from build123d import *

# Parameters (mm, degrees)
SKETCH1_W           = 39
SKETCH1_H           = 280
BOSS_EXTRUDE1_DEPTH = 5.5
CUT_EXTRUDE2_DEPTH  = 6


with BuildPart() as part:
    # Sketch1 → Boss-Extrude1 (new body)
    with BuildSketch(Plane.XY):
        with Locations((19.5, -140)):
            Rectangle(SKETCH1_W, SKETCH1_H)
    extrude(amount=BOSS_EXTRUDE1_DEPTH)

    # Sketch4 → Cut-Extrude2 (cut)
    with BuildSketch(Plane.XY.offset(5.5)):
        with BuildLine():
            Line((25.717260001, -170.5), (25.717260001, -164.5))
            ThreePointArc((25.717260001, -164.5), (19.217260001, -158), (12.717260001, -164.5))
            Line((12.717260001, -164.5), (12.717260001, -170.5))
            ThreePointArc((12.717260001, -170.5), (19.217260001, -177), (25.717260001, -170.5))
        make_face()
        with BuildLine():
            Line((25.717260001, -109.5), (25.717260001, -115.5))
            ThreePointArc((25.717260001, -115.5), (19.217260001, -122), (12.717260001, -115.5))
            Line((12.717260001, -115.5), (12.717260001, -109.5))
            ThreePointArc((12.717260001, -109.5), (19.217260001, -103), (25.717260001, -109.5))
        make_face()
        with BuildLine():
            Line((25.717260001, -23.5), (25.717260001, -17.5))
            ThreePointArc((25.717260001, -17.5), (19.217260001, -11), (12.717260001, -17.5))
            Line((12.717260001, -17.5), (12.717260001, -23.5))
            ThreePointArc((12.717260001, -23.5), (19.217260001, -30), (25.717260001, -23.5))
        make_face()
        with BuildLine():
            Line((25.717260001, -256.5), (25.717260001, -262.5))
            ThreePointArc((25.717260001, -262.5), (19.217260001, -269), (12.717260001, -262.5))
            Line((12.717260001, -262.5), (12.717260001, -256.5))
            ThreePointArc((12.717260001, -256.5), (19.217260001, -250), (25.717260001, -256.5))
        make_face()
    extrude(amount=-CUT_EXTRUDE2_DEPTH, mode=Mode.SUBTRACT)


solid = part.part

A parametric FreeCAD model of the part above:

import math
import FreeCAD as App
import Part
import Sketcher
Q = App.Units.Quantity


def add_polygon(sketch, points):
    """Adds a closed chain of lines whose ends are joined by coincident constraints."""
    first, n = sketch.GeometryCount, len(points)
    for a, b in zip(points, points[1:] + points[:1]):
        sketch.addGeometry(Part.LineSegment(App.Vector(*a, 0), App.Vector(*b, 0)), False)
    for i in range(n):
        sketch.addConstraint(Sketcher.Constraint("Coincident", first + i, 2, first + (i + 1) % n, 1))

doc = App.newDocument("Part")
params = doc.addObject("Spreadsheet::Sheet", "Params")
for row, (alias, value) in enumerate([
    ("sketch1_width", "39 mm"),
    ("sketch1_height", "280 mm"),
    ("pad1_length", "5.5 mm"),
    ("sketch2_radius", "6.5 mm"),
    ("sketch2_height", "6 mm"),
    ("pocket1_length", "6 mm"),
], start=1):
    params.set(f"A{row}", alias)
    params.set(f"B{row}", "=" + value)
    params.setAlias(f"B{row}", alias)

body = doc.addObject("PartDesign::Body", "Body")

sketch1 = body.newObject("Sketcher::SketchObject", "Sketch")
sketch1.AttachmentSupport = (doc.getObject("XY_Plane"), [""])
sketch1.MapMode = "FlatFace"
add_polygon(sketch1, [(0, 0), (0, -280), (39, -280), (39, 0)])
sketch1.addConstraint([
    Sketcher.Constraint("Vertical", 0),
    Sketcher.Constraint("Horizontal", 1),
    Sketcher.Constraint("Vertical", 2),
    Sketcher.Constraint("Horizontal", 3),
    Sketcher.Constraint("Coincident", 3, 2, -1, 1),
    Sketcher.Constraint("DistanceX", 1, 1, 1, 2, Q("39 mm")),
    Sketcher.Constraint("DistanceY", 0, 2, 0, 1, Q("280 mm")),
])
sketch1.setExpression("Constraints[9]", "Params.sketch1_width")
sketch1.setExpression("Constraints[10]", "Params.sketch1_height")
pad1 = body.newObject("PartDesign::Pad", "Pad")
pad1.Profile = sketch1
pad1.setExpression("Length", "Params.pad1_length")

sketch2 = body.newObject("Sketcher::SketchObject", "Sketch001")
sketch2.AttachmentSupport = (doc.getObject("XY_Plane"), [""])
sketch2.MapMode = "FlatFace"
sketch2.AttachmentOffset = App.Placement(App.Vector(0, 0, 5.5), App.Rotation())
sketch2.addGeometry([
    Part.LineSegment(App.Vector(26, -170, 0), App.Vector(26, -164, 0)),
    Part.ArcOfCircle(Part.Circle(App.Vector(19, -164, 0), App.Vector(0, 0, 1), 6), math.radians(0), math.radians(180)),
    Part.LineSegment(App.Vector(13, -164, 0), App.Vector(13, -170, 0)),
    Part.ArcOfCircle(Part.Circle(App.Vector(19, -170, 0), App.Vector(0, 0, 1), 6), math.radians(180), math.radians(360)),
    Part.LineSegment(App.Vector(26, -116, 0), App.Vector(26, -110, 0)),
    Part.ArcOfCircle(Part.Circle(App.Vector(19, -110, 0), App.Vector(0, 0, 1), 6), math.radians(0), math.radians(180)),
    Part.LineSegment(App.Vector(13, -110, 0), App.Vector(13, -116, 0)),
    Part.ArcOfCircle(Part.Circle(App.Vector(19, -116, 0), App.Vector(0, 0, 1), 6), math.radians(180), math.radians(360)),
    Part.LineSegment(App.Vector(26, -24, 0), App.Vector(26, -18, 0)),
    Part.ArcOfCircle(Part.Circle(App.Vector(19, -18, 0), App.Vector(0, 0, 1), 6), math.radians(0), math.radians(180)),
    Part.LineSegment(App.Vector(13, -18, 0), App.Vector(13, -24, 0)),
    Part.ArcOfCircle(Part.Circle(App.Vector(19, -24, 0), App.Vector(0, 0, 1), 6), math.radians(180), math.radians(360)),
    Part.LineSegment(App.Vector(26, -262, 0), App.Vector(26, -256, 0)),
    Part.ArcOfCircle(Part.Circle(App.Vector(19, -256, 0), App.Vector(0, 0, 1), 6), math.radians(0), math.radians(180)),
    Part.LineSegment(App.Vector(13, -256, 0), App.Vector(13, -262, 0)),
    Part.ArcOfCircle(Part.Circle(App.Vector(19, -262, 0), App.Vector(0, 0, 1), 6), math.radians(180), math.radians(360)),
], False)
sketch2.addConstraint([
    Sketcher.Constraint("Tangent", 0, 2, 1, 1),
    Sketcher.Constraint("Tangent", 1, 2, 2, 1),
    Sketcher.Constraint("Tangent", 2, 2, 3, 1),
    Sketcher.Constraint("Tangent", 3, 2, 0, 1),
    Sketcher.Constraint("Tangent", 4, 2, 5, 1),
    Sketcher.Constraint("Tangent", 5, 2, 6, 1),
    Sketcher.Constraint("Tangent", 6, 2, 7, 1),
    Sketcher.Constraint("Tangent", 7, 2, 4, 1),
    Sketcher.Constraint("Tangent", 8, 2, 9, 1),
    Sketcher.Constraint("Tangent", 9, 2, 10, 1),
    Sketcher.Constraint("Tangent", 10, 2, 11, 1),
    Sketcher.Constraint("Tangent", 11, 2, 8, 1),
    Sketcher.Constraint("Tangent", 12, 2, 13, 1),
    Sketcher.Constraint("Tangent", 13, 2, 14, 1),
    Sketcher.Constraint("Tangent", 14, 2, 15, 1),
    Sketcher.Constraint("Tangent", 15, 2, 12, 1),
    Sketcher.Constraint("Vertical", 0),
    Sketcher.Constraint("Vertical", 2),
    Sketcher.Constraint("Vertical", 4),
    Sketcher.Constraint("Vertical", 6),
    Sketcher.Constraint("Vertical", 8),
    Sketcher.Constraint("Vertical", 10),
    Sketcher.Constraint("Vertical", 12),
    Sketcher.Constraint("Vertical", 14),
    Sketcher.Constraint("Equal", 3, 5),
    Sketcher.Constraint("Equal", 7, 9),
    Sketcher.Constraint("Equal", 11, 13),
    Sketcher.Constraint("Vertical", 3, 3, 5, 3),
    Sketcher.Constraint("Vertical", 7, 3, 9, 3),
    Sketcher.Constraint("Vertical", 11, 3, 13, 3),
    Sketcher.Constraint("Equal", 2, 4),
    Sketcher.Constraint("Equal", 6, 8),
    Sketcher.Constraint("Equal", 10, 12),
    Sketcher.Constraint("Radius", 1, Q("6.5 mm")),
    Sketcher.Constraint("DistanceY", 0, 1, 0, 2, Q("6 mm")),
    Sketcher.Constraint("DistanceY", 1, 3, 5, 3, Q("55 mm")),
    Sketcher.Constraint("DistanceY", 5, 3, 9, 3, Q("92 mm")),
    Sketcher.Constraint("DistanceY", 13, 3, 3, 3, Q("86 mm")),
    Sketcher.Constraint("DistanceY", 1, 3, -1, 1, Q("164.5 mm")),
    Sketcher.Constraint("DistanceX", -1, 1, 1, 3, Q("19.21726 mm")),
])
sketch2.setExpression("Constraints[33]", "Params.sketch2_radius")
sketch2.setExpression("Constraints[34]", "Params.sketch2_height")
pocket1 = body.newObject("PartDesign::Pocket", "Pocket")
pocket1.Profile = sketch2
pocket1.setExpression("Length", "Params.pocket1_length")

doc.recompute()
